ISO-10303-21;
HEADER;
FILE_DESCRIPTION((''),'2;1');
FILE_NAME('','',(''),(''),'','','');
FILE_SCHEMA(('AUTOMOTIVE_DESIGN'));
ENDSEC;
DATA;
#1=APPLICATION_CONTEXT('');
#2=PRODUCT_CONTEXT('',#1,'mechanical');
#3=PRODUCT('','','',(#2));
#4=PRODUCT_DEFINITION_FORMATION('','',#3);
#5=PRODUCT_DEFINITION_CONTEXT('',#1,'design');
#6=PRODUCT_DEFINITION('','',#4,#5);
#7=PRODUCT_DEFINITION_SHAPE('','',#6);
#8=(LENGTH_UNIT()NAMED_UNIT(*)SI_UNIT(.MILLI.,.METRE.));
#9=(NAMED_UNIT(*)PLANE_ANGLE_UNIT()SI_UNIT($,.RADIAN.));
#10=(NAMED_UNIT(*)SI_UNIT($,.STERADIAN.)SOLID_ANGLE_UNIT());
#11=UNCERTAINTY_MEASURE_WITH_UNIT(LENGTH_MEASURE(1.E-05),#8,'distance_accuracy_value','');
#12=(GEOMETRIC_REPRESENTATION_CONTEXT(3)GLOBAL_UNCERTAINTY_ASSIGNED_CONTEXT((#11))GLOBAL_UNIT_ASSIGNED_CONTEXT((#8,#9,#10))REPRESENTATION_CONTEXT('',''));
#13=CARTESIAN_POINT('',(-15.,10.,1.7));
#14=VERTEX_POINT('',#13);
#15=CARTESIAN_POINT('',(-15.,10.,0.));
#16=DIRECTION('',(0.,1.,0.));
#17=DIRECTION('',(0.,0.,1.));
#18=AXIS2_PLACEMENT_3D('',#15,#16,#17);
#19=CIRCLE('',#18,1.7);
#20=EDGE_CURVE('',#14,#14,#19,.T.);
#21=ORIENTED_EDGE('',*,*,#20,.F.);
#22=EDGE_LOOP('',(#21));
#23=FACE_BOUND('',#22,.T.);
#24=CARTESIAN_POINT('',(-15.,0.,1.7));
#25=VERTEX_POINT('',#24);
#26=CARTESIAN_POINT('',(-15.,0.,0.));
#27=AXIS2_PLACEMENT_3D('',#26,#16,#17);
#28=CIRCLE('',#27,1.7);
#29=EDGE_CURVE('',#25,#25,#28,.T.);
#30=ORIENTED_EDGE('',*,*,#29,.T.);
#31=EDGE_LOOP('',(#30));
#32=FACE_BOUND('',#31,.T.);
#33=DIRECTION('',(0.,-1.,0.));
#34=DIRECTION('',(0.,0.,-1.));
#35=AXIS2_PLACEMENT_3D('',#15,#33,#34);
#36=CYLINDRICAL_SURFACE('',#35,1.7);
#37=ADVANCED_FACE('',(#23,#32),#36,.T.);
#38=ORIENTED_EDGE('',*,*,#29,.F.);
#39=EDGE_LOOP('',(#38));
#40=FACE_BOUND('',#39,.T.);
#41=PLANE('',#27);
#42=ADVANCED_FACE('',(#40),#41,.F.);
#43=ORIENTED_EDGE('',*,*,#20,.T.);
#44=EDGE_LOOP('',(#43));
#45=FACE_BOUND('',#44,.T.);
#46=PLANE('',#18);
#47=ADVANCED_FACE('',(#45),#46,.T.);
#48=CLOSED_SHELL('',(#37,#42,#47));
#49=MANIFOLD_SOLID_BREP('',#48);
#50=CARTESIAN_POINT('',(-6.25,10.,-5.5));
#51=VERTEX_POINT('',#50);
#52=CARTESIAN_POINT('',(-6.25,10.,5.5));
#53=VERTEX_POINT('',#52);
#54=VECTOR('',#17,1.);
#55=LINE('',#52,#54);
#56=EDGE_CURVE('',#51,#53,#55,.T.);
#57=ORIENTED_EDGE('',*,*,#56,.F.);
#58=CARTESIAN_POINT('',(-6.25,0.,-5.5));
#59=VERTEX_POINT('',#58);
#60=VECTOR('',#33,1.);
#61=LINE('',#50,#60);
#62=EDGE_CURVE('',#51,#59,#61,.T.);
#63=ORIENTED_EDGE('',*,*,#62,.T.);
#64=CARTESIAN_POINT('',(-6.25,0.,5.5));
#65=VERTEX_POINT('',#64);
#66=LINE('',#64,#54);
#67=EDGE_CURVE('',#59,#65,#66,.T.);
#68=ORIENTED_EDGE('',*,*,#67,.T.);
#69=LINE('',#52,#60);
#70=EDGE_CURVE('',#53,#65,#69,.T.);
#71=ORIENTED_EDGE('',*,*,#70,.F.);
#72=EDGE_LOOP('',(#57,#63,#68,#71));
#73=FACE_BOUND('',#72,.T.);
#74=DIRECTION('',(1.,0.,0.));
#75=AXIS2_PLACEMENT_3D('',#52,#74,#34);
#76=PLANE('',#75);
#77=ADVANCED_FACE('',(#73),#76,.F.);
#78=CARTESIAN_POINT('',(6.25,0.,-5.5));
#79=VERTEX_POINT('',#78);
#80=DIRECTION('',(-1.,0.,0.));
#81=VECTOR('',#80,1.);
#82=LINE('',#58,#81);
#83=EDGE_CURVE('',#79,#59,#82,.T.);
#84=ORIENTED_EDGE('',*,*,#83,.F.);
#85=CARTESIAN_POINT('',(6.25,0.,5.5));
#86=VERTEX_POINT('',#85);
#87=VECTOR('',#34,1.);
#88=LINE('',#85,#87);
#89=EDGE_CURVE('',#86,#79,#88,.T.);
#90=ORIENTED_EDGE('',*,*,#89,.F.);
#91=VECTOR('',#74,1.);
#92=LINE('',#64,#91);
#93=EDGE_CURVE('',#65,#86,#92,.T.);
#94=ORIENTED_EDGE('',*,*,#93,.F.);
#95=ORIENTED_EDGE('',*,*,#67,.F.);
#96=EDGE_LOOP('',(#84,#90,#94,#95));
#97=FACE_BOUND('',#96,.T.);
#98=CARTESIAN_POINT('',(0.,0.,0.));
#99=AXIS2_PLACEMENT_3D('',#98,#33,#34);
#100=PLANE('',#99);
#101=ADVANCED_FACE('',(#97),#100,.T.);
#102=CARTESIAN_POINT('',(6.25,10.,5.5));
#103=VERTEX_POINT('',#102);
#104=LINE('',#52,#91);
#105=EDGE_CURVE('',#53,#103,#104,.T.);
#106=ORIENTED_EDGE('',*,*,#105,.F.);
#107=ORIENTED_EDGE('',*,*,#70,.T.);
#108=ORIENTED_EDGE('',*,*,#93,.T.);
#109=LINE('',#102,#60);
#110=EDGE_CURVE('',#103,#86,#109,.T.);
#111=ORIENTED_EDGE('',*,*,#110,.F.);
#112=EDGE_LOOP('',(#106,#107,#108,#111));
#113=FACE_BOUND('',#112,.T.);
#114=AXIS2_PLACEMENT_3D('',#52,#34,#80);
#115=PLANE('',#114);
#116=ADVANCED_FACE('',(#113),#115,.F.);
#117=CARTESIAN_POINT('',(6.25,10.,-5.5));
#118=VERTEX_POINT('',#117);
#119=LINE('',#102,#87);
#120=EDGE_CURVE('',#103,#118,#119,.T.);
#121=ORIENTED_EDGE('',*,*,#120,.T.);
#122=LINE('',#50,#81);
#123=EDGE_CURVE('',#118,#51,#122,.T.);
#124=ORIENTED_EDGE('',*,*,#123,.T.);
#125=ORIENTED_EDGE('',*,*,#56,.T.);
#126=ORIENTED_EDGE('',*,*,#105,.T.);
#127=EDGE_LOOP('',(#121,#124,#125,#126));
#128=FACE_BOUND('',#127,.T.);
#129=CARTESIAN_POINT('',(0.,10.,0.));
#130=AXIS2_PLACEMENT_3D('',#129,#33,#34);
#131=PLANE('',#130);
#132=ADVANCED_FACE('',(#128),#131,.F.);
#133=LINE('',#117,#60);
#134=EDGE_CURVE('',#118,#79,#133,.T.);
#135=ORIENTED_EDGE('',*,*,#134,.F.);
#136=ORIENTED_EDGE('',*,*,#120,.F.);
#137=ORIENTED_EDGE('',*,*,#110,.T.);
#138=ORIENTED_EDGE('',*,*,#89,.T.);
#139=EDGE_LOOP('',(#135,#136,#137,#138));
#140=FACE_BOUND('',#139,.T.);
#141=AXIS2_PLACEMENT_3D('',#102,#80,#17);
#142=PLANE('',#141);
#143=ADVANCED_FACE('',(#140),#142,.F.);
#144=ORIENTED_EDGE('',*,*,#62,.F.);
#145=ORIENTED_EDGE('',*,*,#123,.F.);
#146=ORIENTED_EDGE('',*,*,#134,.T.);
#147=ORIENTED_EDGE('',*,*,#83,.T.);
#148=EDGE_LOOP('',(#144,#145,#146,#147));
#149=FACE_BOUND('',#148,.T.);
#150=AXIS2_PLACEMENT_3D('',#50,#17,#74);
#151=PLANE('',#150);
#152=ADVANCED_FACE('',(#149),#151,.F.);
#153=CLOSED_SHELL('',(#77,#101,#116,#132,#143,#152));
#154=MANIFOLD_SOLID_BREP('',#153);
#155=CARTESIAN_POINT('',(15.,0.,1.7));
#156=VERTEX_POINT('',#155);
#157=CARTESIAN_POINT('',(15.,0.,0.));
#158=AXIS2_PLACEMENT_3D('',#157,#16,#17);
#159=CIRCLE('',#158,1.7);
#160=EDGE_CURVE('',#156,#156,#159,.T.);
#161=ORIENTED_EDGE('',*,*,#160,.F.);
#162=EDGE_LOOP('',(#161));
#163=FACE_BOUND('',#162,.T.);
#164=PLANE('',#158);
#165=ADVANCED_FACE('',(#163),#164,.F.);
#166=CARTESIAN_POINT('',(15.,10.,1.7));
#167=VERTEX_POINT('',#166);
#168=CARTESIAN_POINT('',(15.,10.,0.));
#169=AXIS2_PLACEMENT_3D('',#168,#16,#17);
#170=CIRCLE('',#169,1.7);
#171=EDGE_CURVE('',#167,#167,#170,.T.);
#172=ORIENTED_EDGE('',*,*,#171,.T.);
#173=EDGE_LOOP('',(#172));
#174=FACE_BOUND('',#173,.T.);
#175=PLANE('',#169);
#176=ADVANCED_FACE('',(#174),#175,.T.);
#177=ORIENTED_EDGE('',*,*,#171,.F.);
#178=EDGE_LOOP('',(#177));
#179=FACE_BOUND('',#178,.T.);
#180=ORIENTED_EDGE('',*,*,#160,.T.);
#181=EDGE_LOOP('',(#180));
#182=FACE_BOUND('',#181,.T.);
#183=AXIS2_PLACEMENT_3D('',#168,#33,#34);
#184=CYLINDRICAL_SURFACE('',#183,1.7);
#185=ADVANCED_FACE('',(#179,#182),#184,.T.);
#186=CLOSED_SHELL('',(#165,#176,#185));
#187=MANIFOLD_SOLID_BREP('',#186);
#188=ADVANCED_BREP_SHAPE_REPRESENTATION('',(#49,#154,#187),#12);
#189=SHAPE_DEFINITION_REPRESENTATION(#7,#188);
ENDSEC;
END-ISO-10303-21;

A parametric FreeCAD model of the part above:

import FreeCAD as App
import Part
import Sketcher
Q = App.Units.Quantity

doc = App.newDocument("Part")
body = doc.addObject("PartDesign::Body", "Body")

sketch1 = body.newObject("Sketcher::SketchObject", "Sketch")
sketch1.AttachmentSupport = (doc.getObject("XZ_Plane"), [""])
sketch1.MapMode = "FlatFace"
sketch1.addGeometry(Part.Circle(App.Vector(15, 0, 0), App.Vector(0, 0, 1), 1.7), False)
sketch1.addConstraint([
    Sketcher.Constraint("PointOnObject", 0, 3, -1),
    Sketcher.Constraint("Diameter", 0, Q("3.4 mm")),
    Sketcher.Constraint("DistanceX", -1, 1, 0, 3, Q("15 mm")),
])
pad1 = body.newObject("PartDesign::Pad", "Pad")
pad1.Profile = sketch1
pad1.Length = 10
pad1.Reversed = True
body2 = doc.addObject("PartDesign::Body", "Body001")

sketch2 = body2.newObject("Sketcher::SketchObject", "Sketch001")
sketch2.AttachmentSupport = (doc.getObject("XZ_Plane001"), [""])
sketch2.MapMode = "FlatFace"
sketch2.addGeometry(Part.Circle(App.Vector(-15, 0, 0), App.Vector(0, 0, 1), 1.7), False)
sketch2.addConstraint([
    Sketcher.Constraint("PointOnObject", 0, 3, -1),
    Sketcher.Constraint("Diameter", 0, Q("3.4 mm")),
    Sketcher.Constraint("DistanceX", 0, 3, -1, 1, Q("15 mm")),
])
pad2 = body2.newObject("PartDesign::Pad", "Pad001")
pad2.Profile = sketch2
pad2.Length = 10
pad2.Reversed = True
body3 = doc.addObject("PartDesign::Body", "Body002")

sketch3 = body3.newObject("Sketcher::SketchObject", "Sketch002")
sketch3.AttachmentSupport = (doc.getObject("XZ_Plane002"), [""])
sketch3.MapMode = "FlatFace"
sketch3.addGeometry([
    Part.LineSegment(App.Vector(-6.25, -5.5, 0), App.Vector(-6.25, 5.5, 0)),
    Part.LineSegment(App.Vector(-6.25, 5.5, 0), App.Vector(6.25, 5.5, 0)),
    Part.LineSegment(App.Vector(6.25, 5.5, 0), App.Vector(6.25, -5.5, 0)),
    Part.LineSegment(App.Vector(6.25, -5.5, 0), App.Vector(-6.25, -5.5, 0)),
], False)
sketch3.addConstraint([
    Sketcher.Constraint("Coincident", 0, 2, 1, 1),
    Sketcher.Constraint("Coincident", 1, 2, 2, 1),
    Sketcher.Constraint("Coincident", 2, 2, 3, 1),
    Sketcher.Constraint("Coincident", 3, 2, 0, 1),
    Sketcher.Constraint("Vertical", 0),
    Sketcher.Constraint("Horizontal", 1),
    Sketcher.Constraint("Vertical", 2),
    Sketcher.Constraint("Horizontal", 3),
    Sketcher.Constraint("Symmetric", 0, 2, 2, 2, -1, 1),
    Sketcher.Constraint("DistanceY", 0, 1, 0, 2, Q("11 mm")),
    Sketcher.Constraint("DistanceX", 1, 1, 1, 2, Q("12.5 mm")),
])
pad3 = body3.newObject("PartDesign::Pad", "Pad002")
pad3.Profile = sketch3
pad3.Length = 10
pad3.Reversed = True

doc.recompute()
